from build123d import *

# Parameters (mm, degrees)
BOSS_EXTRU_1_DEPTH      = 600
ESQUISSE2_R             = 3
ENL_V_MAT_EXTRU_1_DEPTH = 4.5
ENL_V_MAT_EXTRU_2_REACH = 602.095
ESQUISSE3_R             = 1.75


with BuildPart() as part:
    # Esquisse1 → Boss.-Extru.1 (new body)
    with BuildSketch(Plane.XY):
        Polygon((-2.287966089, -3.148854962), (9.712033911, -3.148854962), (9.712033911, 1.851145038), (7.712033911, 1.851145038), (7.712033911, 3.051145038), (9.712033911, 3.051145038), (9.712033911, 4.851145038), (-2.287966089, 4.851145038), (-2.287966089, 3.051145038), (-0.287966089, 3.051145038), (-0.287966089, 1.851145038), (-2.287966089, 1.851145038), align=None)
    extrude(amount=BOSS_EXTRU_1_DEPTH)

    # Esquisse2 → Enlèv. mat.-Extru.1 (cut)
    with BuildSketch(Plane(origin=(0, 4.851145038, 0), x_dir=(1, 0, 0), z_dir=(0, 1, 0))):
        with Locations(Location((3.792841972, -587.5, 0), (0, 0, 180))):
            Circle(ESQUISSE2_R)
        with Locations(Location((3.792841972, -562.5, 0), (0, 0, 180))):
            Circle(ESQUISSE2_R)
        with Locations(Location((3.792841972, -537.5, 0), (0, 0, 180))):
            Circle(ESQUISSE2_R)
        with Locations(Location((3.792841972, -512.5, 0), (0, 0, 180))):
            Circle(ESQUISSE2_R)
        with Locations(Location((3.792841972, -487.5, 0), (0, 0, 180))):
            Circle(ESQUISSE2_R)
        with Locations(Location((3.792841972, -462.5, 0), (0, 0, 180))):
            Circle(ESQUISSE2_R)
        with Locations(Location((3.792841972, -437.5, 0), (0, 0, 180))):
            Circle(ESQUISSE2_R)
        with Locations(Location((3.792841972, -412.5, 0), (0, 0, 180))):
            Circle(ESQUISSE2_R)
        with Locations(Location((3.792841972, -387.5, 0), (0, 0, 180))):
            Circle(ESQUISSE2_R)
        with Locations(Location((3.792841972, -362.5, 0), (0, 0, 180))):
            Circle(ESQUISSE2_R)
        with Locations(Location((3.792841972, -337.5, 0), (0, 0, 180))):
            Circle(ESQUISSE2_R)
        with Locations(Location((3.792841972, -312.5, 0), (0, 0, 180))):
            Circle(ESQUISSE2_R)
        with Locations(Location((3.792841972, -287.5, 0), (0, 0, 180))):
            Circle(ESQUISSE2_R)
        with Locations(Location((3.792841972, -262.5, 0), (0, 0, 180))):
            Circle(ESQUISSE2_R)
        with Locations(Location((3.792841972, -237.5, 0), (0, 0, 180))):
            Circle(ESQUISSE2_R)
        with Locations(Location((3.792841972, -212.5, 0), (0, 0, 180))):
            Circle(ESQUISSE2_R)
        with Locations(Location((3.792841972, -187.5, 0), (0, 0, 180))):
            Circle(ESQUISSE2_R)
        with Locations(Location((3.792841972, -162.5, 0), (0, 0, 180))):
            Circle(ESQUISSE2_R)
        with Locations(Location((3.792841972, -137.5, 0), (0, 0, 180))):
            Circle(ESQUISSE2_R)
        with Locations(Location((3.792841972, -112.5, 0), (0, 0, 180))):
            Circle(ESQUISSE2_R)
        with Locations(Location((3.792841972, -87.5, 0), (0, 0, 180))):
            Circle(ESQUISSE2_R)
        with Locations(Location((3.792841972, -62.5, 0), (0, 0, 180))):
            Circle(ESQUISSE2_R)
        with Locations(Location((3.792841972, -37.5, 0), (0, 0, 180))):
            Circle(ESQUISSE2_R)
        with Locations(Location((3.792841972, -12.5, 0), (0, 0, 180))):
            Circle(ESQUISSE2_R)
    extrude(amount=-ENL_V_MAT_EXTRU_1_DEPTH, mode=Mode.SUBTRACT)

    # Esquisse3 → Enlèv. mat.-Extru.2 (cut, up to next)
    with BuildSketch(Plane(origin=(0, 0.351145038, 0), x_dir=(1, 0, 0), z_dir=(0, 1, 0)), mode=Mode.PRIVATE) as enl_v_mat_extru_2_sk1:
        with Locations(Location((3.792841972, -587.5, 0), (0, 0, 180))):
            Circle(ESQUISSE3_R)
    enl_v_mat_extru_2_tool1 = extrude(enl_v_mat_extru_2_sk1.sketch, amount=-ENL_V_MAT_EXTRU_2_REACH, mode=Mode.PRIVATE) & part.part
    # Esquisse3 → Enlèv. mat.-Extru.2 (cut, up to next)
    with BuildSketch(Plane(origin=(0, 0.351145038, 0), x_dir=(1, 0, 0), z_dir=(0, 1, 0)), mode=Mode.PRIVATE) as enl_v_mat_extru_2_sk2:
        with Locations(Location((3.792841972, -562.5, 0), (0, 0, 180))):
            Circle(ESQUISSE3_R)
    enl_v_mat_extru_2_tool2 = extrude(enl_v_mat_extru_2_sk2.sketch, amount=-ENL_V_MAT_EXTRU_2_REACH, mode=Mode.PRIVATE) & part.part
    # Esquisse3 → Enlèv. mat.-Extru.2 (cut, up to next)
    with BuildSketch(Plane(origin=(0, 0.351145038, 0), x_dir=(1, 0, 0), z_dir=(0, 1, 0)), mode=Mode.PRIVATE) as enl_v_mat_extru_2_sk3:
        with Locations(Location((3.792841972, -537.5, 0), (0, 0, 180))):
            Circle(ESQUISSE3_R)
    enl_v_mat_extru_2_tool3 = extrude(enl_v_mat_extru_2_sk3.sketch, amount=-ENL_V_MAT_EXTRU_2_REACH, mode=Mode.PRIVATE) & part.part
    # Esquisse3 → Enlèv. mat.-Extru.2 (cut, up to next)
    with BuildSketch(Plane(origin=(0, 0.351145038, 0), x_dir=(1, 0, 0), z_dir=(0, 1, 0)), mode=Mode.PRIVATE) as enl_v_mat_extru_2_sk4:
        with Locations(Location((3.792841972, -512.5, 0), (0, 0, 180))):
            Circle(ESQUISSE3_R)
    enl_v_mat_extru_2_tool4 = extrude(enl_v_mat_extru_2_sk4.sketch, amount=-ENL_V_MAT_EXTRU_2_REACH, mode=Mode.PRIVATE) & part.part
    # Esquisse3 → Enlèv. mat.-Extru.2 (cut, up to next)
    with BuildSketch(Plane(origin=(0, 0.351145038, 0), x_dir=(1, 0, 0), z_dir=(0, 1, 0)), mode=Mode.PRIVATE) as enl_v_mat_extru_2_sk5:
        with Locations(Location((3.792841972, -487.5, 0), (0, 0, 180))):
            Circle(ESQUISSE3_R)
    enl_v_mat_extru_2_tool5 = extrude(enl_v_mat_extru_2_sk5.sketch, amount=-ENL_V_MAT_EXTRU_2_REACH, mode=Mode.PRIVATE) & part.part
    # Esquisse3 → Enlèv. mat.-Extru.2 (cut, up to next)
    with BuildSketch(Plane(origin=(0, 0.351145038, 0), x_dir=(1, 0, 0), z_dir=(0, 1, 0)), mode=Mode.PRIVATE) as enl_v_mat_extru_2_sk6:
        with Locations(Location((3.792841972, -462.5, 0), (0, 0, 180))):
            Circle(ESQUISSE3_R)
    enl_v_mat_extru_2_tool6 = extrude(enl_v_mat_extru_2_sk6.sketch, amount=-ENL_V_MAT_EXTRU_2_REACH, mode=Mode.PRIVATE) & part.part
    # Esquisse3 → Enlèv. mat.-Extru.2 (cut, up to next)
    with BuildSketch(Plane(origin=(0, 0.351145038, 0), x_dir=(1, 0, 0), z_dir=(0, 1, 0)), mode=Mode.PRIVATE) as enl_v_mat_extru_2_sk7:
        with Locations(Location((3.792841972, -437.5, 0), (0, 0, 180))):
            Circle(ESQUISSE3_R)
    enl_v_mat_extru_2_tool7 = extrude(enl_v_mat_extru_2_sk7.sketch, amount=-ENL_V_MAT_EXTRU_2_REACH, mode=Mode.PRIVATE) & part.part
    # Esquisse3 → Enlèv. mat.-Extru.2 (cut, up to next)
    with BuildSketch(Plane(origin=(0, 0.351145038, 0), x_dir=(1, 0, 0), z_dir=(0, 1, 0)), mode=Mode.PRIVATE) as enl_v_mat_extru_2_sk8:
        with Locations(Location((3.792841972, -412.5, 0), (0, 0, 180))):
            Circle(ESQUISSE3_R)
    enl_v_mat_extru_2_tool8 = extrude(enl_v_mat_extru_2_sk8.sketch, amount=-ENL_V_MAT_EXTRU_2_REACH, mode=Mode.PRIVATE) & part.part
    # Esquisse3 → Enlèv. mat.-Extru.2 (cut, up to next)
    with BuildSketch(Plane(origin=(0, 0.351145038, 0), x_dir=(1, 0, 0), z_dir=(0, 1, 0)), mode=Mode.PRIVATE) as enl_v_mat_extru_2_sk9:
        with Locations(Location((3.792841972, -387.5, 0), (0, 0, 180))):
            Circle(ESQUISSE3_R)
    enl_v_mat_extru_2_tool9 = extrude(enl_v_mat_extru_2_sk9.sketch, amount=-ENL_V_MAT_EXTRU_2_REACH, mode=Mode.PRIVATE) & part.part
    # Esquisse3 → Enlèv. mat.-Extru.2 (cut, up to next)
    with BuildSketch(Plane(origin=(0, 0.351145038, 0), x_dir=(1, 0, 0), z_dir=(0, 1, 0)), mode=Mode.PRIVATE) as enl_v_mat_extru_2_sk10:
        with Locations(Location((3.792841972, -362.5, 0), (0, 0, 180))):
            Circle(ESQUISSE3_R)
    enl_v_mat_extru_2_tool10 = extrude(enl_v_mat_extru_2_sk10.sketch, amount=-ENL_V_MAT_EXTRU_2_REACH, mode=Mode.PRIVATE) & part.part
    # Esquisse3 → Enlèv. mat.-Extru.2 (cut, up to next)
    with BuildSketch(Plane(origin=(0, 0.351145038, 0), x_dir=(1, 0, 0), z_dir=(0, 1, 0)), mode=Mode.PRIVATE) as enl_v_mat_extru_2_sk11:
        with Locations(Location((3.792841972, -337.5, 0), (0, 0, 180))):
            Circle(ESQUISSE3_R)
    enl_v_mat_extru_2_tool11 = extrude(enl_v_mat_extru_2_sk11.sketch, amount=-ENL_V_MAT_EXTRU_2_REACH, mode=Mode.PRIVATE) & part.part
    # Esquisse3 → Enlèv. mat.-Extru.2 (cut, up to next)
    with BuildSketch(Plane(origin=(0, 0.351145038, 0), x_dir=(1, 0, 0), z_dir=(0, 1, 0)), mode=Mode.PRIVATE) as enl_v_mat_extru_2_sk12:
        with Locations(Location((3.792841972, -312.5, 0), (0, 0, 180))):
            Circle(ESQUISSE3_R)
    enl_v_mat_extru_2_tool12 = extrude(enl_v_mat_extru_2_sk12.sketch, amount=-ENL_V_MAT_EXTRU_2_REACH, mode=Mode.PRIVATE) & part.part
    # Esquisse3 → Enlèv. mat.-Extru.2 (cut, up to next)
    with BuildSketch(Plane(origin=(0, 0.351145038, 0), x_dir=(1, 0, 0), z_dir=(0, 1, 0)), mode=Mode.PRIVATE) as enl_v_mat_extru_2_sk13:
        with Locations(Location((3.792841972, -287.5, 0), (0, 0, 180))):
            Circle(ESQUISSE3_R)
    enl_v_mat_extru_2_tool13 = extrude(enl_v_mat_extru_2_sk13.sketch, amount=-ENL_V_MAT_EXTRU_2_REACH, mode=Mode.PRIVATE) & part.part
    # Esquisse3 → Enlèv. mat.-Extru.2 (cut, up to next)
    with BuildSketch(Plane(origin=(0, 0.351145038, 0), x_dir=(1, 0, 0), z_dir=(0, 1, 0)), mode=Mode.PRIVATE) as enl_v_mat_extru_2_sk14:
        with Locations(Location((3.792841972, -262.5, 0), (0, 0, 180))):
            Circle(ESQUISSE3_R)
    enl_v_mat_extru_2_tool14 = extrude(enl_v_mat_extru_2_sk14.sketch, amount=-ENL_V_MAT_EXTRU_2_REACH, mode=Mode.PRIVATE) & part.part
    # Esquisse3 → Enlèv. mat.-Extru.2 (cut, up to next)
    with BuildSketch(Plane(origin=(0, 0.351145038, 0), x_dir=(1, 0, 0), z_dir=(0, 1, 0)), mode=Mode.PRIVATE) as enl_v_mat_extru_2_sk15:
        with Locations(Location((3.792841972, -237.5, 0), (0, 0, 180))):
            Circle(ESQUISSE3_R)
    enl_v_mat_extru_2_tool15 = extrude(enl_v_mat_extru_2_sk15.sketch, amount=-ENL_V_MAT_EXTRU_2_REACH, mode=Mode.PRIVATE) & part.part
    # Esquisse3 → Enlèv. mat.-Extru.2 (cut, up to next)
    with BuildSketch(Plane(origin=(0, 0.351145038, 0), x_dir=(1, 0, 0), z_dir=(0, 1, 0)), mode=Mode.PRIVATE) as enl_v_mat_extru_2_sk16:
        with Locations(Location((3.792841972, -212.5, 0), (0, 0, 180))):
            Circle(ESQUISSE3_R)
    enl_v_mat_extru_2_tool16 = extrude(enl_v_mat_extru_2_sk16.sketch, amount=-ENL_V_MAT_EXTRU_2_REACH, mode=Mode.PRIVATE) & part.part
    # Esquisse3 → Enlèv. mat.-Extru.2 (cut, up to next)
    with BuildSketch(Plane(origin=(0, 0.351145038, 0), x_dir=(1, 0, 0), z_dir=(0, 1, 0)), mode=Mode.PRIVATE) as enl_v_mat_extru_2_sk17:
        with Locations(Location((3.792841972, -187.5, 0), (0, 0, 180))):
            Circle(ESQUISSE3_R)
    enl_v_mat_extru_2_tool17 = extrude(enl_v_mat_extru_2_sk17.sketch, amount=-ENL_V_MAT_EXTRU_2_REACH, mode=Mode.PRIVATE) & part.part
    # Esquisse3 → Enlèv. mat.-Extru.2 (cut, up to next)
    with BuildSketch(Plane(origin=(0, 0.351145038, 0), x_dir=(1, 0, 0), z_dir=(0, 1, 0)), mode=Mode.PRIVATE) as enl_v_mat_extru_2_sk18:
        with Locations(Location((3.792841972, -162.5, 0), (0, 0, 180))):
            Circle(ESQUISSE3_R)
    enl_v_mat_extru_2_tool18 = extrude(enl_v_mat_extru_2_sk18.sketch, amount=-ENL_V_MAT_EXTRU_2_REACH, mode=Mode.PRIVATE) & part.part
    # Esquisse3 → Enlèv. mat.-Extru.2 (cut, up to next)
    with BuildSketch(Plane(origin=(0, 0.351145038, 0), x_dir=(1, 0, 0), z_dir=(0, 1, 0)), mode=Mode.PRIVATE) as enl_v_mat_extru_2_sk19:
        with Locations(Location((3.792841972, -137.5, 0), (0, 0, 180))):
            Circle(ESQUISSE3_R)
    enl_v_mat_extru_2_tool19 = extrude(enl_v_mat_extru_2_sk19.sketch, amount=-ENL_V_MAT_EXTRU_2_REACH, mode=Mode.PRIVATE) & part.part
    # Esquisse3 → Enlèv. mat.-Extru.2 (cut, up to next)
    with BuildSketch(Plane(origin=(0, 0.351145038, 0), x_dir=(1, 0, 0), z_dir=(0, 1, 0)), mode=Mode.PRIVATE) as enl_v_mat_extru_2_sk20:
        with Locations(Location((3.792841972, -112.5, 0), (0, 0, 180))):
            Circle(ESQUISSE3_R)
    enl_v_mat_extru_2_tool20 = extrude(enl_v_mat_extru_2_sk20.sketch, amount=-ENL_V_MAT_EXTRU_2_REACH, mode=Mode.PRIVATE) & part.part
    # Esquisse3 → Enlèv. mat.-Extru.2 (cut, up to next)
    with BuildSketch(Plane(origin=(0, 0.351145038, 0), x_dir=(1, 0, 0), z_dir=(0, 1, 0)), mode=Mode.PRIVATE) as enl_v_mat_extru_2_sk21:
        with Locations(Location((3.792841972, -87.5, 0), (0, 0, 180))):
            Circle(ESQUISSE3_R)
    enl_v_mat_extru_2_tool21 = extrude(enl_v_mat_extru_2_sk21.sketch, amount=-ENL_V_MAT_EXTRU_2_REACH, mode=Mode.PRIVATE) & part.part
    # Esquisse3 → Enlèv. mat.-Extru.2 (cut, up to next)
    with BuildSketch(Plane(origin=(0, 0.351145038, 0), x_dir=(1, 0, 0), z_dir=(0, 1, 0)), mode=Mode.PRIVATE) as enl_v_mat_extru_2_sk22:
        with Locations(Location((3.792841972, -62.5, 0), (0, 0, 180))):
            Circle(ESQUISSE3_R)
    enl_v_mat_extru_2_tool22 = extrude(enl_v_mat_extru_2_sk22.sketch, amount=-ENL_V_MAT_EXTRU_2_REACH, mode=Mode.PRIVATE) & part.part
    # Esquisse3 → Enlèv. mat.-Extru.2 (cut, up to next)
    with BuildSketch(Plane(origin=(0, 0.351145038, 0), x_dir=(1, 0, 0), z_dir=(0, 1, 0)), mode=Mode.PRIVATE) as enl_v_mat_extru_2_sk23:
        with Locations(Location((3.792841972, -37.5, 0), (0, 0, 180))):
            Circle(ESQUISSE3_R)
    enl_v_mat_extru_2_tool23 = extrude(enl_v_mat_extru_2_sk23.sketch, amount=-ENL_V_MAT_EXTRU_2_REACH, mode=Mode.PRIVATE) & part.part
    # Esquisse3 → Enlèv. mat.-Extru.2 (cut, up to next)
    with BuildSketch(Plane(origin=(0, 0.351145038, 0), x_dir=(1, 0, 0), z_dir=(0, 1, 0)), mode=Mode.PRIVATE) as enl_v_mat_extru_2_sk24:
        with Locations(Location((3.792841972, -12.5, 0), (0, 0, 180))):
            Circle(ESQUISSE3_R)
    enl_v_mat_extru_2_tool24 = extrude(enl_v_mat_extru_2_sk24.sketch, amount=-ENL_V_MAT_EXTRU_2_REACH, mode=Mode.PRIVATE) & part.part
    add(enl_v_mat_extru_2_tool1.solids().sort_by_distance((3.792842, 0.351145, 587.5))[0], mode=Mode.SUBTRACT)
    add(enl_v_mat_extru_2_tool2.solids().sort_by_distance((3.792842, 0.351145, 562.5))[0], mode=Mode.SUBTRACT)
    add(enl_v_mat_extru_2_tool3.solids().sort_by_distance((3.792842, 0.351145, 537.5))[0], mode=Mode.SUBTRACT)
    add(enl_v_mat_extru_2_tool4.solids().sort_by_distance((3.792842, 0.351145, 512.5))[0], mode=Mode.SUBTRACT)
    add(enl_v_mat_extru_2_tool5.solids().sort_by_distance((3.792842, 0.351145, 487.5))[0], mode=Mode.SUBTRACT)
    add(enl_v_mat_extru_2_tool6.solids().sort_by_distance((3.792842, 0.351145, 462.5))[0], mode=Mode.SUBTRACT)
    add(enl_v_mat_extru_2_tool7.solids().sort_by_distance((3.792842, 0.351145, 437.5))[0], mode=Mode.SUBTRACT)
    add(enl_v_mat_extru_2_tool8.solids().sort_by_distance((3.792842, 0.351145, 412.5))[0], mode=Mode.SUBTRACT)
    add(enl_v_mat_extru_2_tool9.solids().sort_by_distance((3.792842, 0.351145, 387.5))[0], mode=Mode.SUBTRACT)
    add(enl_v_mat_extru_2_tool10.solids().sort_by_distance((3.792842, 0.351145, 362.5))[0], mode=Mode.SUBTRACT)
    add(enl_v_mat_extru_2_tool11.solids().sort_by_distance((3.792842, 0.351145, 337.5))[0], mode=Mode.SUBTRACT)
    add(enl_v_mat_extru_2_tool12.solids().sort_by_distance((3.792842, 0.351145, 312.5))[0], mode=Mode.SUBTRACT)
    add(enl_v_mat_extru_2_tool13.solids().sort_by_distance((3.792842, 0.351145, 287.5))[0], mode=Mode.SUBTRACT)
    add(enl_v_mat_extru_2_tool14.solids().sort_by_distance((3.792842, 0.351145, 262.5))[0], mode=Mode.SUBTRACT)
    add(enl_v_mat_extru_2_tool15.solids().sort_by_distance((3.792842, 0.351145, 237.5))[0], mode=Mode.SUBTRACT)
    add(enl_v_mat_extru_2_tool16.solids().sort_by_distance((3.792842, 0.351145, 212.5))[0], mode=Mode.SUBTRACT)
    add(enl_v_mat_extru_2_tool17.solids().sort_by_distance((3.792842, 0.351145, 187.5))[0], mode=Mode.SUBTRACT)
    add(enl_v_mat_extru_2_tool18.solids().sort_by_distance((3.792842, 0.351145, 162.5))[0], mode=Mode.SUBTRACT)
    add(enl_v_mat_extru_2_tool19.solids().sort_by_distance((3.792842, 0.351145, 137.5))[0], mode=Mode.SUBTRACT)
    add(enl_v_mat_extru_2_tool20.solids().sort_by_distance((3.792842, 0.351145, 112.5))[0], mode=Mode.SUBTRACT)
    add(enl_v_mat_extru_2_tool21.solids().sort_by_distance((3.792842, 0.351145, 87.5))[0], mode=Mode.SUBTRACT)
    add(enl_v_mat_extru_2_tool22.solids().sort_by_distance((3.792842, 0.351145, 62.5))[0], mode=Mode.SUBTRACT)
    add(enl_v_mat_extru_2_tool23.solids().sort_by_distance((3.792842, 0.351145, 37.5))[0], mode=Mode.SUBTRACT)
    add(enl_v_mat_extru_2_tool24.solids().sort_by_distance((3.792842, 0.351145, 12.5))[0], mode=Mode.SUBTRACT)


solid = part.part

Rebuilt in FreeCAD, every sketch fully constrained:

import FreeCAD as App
import Part
import Sketcher
from FreeCAD import Vector

doc = App.newDocument("Part")
body = doc.addObject("PartDesign::Body", "Body")

sketch1 = body.newObject("Sketcher::SketchObject", "Sketch")
sketch1.AttachmentSupport = (doc.getObject("XY_Plane"), [""])
sketch1.MapMode = "FlatFace"
sketch1.addGeometry(Part.LineSegment(Vector(-2.3, -3.1, 0), Vector(9.7, -3.1, 0)), False)
sketch1.addGeometry(Part.LineSegment(Vector(9.7, -3.1, 0), Vector(9.7, 1.9, 0)), False)
sketch1.addGeometry(Part.LineSegment(Vector(9.7, 1.9, 0), Vector(7.7, 1.9, 0)), False)
sketch1.addGeometry(Part.LineSegment(Vector(7.7, 1.9, 0), Vector(7.7, 3.1, 0)), False)
sketch1.addGeometry(Part.LineSegment(Vector(7.7, 3.1, 0), Vector(9.7, 3.1, 0)), False)
sketch1.addGeometry(Part.LineSegment(Vector(9.7, 3.1, 0), Vector(9.7, 4.9, 0)), False)
sketch1.addGeometry(Part.LineSegment(Vector(9.7, 4.9, 0), Vector(-2.3, 4.9, 0)), False)
sketch1.addGeometry(Part.LineSegment(Vector(-2.3, 4.9, 0), Vector(-2.3, 3.1, 0)), False)
sketch1.addGeometry(Part.LineSegment(Vector(-2.3, 3.1, 0), Vector(-0.3, 3.1, 0)), False)
sketch1.addGeometry(Part.LineSegment(Vector(-0.3, 3.1, 0), Vector(-0.3, 1.9, 0)), False)
sketch1.addGeometry(Part.LineSegment(Vector(-0.3, 1.9, 0), Vector(-2.3, 1.9, 0)), False)
sketch1.addGeometry(Part.LineSegment(Vector(-2.3, 1.9, 0), Vector(-2.3, -3.1, 0)), False)
sketch1.addConstraint(Sketcher.Constraint("Coincident", 0, 2, 1, 1))
sketch1.addConstraint(Sketcher.Constraint("Coincident", 1, 2, 2, 1))
sketch1.addConstraint(Sketcher.Constraint("Coincident", 2, 2, 3, 1))
sketch1.addConstraint(Sketcher.Constraint("Coincident", 3, 2, 4, 1))
sketch1.addConstraint(Sketcher.Constraint("Coincident", 4, 2, 5, 1))
sketch1.addConstraint(Sketcher.Constraint("Coincident", 5, 2, 6, 1))
sketch1.addConstraint(Sketcher.Constraint("Coincident", 6, 2, 7, 1))
sketch1.addConstraint(Sketcher.Constraint("Coincident", 7, 2, 8, 1))
sketch1.addConstraint(Sketcher.Constraint("Coincident", 8, 2, 9, 1))
sketch1.addConstraint(Sketcher.Constraint("Coincident", 9, 2, 10, 1))
sketch1.addConstraint(Sketcher.Constraint("Coincident", 10, 2, 11, 1))
sketch1.addConstraint(Sketcher.Constraint("Coincident", 11, 2, 0, 1))
sketch1.addConstraint(Sketcher.Constraint("Horizontal", 0))
sketch1.addConstraint(Sketcher.Constraint("Vertical", 1))
sketch1.addConstraint(Sketcher.Constraint("Horizontal", 2))
sketch1.addConstraint(Sketcher.Constraint("Vertical", 3))
sketch1.addConstraint(Sketcher.Constraint("Horizontal", 4))
sketch1.addConstraint(Sketcher.Constraint("Vertical", 5))
sketch1.addConstraint(Sketcher.Constraint("Horizontal", 6))
sketch1.addConstraint(Sketcher.Constraint("Vertical", 7))
sketch1.addConstraint(Sketcher.Constraint("Horizontal", 8))
sketch1.addConstraint(Sketcher.Constraint("Vertical", 9))
sketch1.addConstraint(Sketcher.Constraint("Horizontal", 10))
sketch1.addConstraint(Sketcher.Constraint("Vertical", 11))
sketch1.addConstraint(Sketcher.Constraint("Horizontal", 4, 2, 7, 2))
sketch1.addConstraint(Sketcher.Constraint("Horizontal", 2, 2, 9, 2))
sketch1.addConstraint(Sketcher.Constraint("Vertical", 1, 2, 4, 2))
sketch1.addConstraint(Sketcher.Constraint("Vertical", 7, 2, 10, 2))
sketch1.addConstraint(Sketcher.Constraint("Equal", 4, 8))
sketch1.addConstraint(Sketcher.Constraint("DistanceX", 0, 1, 0, 2, 12.0))
sketch1.addConstraint(Sketcher.Constraint("DistanceX", 2, 2, 2, 1, 2.0))
sketch1.addConstraint(Sketcher.Constraint("DistanceY", 1, 1, 1, 2, 5.0))
sketch1.addConstraint(Sketcher.Constraint("DistanceY", 3, 1, 3, 2, 1.2))
sketch1.addConstraint(Sketcher.Constraint("DistanceY", 5, 1, 5, 2, 1.8))
sketch1.addConstraint(Sketcher.Constraint("DistanceX", -1, 1, 0, 2, 9.712034))
sketch1.addConstraint(Sketcher.Constraint("DistanceY", 0, 2, -1, 1, 3.148855))
pad1 = body.newObject("PartDesign::Pad", "Pad")
pad1.Profile = sketch1
pad1.Length = 600

sketch2 = body.newObject("Sketcher::SketchObject", "Sketch001")
sketch2.AttachmentSupport = (doc.getObject("XZ_Plane"), [""])
sketch2.MapMode = "FlatFace"
sketch2.AttachmentOffset = App.Placement(Vector(0, 0, -4.851145), App.Rotation())
sketch2.addGeometry(Part.Circle(Vector(3.8, 587.5, 0), Vector(0, 0, 1), 3), False)
sketch2.addGeometry(Part.Circle(Vector(3.8, 562.5, 0), Vector(0, 0, 1), 3), False)
sketch2.addGeometry(Part.Circle(Vector(3.8, 537.5, 0), Vector(0, 0, 1), 3), False)
sketch2.addGeometry(Part.Circle(Vector(3.8, 512.5, 0), Vector(0, 0, 1), 3), False)
sketch2.addGeometry(Part.Circle(Vector(3.8, 487.5, 0), Vector(0, 0, 1), 3), False)
sketch2.addGeometry(Part.Circle(Vector(3.8, 462.5, 0), Vector(0, 0, 1), 3), False)
sketch2.addGeometry(Part.Circle(Vector(3.8, 437.5, 0), Vector(0, 0, 1), 3), False)
sketch2.addGeometry(Part.Circle(Vector(3.8, 412.5, 0), Vector(0, 0, 1), 3), False)
sketch2.addGeometry(Part.Circle(Vector(3.8, 387.5, 0), Vector(0, 0, 1), 3), False)
sketch2.addGeometry(Part.Circle(Vector(3.8, 362.5, 0), Vector(0, 0, 1), 3), False)
sketch2.addGeometry(Part.Circle(Vector(3.8, 337.5, 0), Vector(0, 0, 1), 3), False)
sketch2.addGeometry(Part.Circle(Vector(3.8, 312.5, 0), Vector(0, 0, 1), 3), False)
sketch2.addGeometry(Part.Circle(Vector(3.8, 287.5, 0), Vector(0, 0, 1), 3), False)
sketch2.addGeometry(Part.Circle(Vector(3.8, 262.5, 0), Vector(0, 0, 1), 3), False)
sketch2.addGeometry(Part.Circle(Vector(3.8, 237.5, 0), Vector(0, 0, 1), 3), False)
sketch2.addGeometry(Part.Circle(Vector(3.8, 212.5, 0), Vector(0, 0, 1), 3), False)
sketch2.addGeometry(Part.Circle(Vector(3.8, 187.5, 0), Vector(0, 0, 1), 3), False)
sketch2.addGeometry(Part.Circle(Vector(3.8, 162.5, 0), Vector(0, 0, 1), 3), False)
sketch2.addGeometry(Part.Circle(Vector(3.8, 137.5, 0), Vector(0, 0, 1), 3), False)
sketch2.addGeometry(Part.Circle(Vector(3.8, 112.5, 0), Vector(0, 0, 1), 3), False)
sketch2.addGeometry(Part.Circle(Vector(3.8, 87.5, 0), Vector(0, 0, 1), 3), False)
sketch2.addGeometry(Part.Circle(Vector(3.8, 62.5, 0), Vector(0, 0, 1), 3), False)
sketch2.addGeometry(Part.Circle(Vector(3.8, 37.5, 0), Vector(0, 0, 1), 3), False)
sketch2.addGeometry(Part.Circle(Vector(3.8, 12.5, 0), Vector(0, 0, 1), 3), False)
sketch2.addConstraint(Sketcher.Constraint("Equal", 0, 1))
sketch2.addConstraint(Sketcher.Constraint("Equal", 1, 2))
sketch2.addConstraint(Sketcher.Constraint("Equal", 2, 3))
sketch2.addConstraint(Sketcher.Constraint("Equal", 3, 4))
sketch2.addConstraint(Sketcher.Constraint("Equal", 4, 5))
sketch2.addConstraint(Sketcher.Constraint("Equal", 5, 6))
sketch2.addConstraint(Sketcher.Constraint("Equal", 6, 7))
sketch2.addConstraint(Sketcher.Constraint("Equal", 7, 8))
sketch2.addConstraint(Sketcher.Constraint("Equal", 8, 9))
sketch2.addConstraint(Sketcher.Constraint("Equal", 9, 10))
sketch2.addConstraint(Sketcher.Constraint("Equal", 10, 11))
sketch2.addConstraint(Sketcher.Constraint("Equal", 11, 12))
sketch2.addConstraint(Sketcher.Constraint("Equal", 12, 13))
sketch2.addConstraint(Sketcher.Constraint("Equal", 13, 14))
sketch2.addConstraint(Sketcher.Constraint("Equal", 14, 15))
sketch2.addConstraint(Sketcher.Constraint("Equal", 15, 16))
sketch2.addConstraint(Sketcher.Constraint("Equal", 16, 17))
sketch2.addConstraint(Sketcher.Constraint("Equal", 17, 18))
sketch2.addConstraint(Sketcher.Constraint("Equal", 18, 19))
sketch2.addConstraint(Sketcher.Constraint("Equal", 19, 20))
sketch2.addConstraint(Sketcher.Constraint("Equal", 20, 21))
sketch2.addConstraint(Sketcher.Constraint("Equal", 21, 22))
sketch2.addConstraint(Sketcher.Constraint("Equal", 22, 23))
sketch2.addConstraint(Sketcher.Constraint("Vertical", 0, 3, 1, 3))
sketch2.addConstraint(Sketcher.Constraint("Vertical", 1, 3, 2, 3))
sketch2.addConstraint(Sketcher.Constraint("Vertical", 2, 3, 3, 3))
sketch2.addConstraint(Sketcher.Constraint("Vertical", 3, 3, 4, 3))
sketch2.addConstraint(Sketcher.Constraint("Vertical", 4, 3, 5, 3))
sketch2.addConstraint(Sketcher.Constraint("Vertical", 5, 3, 6, 3))
sketch2.addConstraint(Sketcher.Constraint("Vertical", 6, 3, 7, 3))
sketch2.addConstraint(Sketcher.Constraint("Vertical", 7, 3, 8, 3))
sketch2.addConstraint(Sketcher.Constraint("Vertical", 8, 3, 9, 3))
sketch2.addConstraint(Sketcher.Constraint("Vertical", 9, 3, 10, 3))
sketch2.addConstraint(Sketcher.Constraint("Vertical", 10, 3, 11, 3))
sketch2.addConstraint(Sketcher.Constraint("Vertical", 11, 3, 12, 3))
sketch2.addConstraint(Sketcher.Constraint("Vertical", 12, 3, 13, 3))
sketch2.addConstraint(Sketcher.Constraint("Vertical", 13, 3, 14, 3))
sketch2.addConstraint(Sketcher.Constraint("Vertical", 14, 3, 15, 3))
sketch2.addConstraint(Sketcher.Constraint("Vertical", 15, 3, 16, 3))
sketch2.addConstraint(Sketcher.Constraint("Vertical", 16, 3, 17, 3))
sketch2.addConstraint(Sketcher.Constraint("Vertical", 17, 3, 18, 3))
sketch2.addConstraint(Sketcher.Constraint("Vertical", 18, 3, 19, 3))
sketch2.addConstraint(Sketcher.Constraint("Vertical", 19, 3, 20, 3))
sketch2.addConstraint(Sketcher.Constraint("Vertical", 20, 3, 21, 3))
sketch2.addConstraint(Sketcher.Constraint("Vertical", 21, 3, 22, 3))
sketch2.addConstraint(Sketcher.Constraint("Vertical", 22, 3, 23, 3))
sketch2.addConstraint(Sketcher.Constraint("Diameter", 0, 6.0))
sketch2.addConstraint(Sketcher.Constraint("DistanceY", 1, 3, 0, 3, 25.0))
sketch2.addConstraint(Sketcher.Constraint("DistanceY", 2, 3, 1, 3, 25.0))
sketch2.addConstraint(Sketcher.Constraint("DistanceY", 3, 3, 2, 3, 25.0))
sketch2.addConstraint(Sketcher.Constraint("DistanceY", 4, 3, 3, 3, 25.0))
sketch2.addConstraint(Sketcher.Constraint("DistanceY", 5, 3, 4, 3, 25.0))
sketch2.addConstraint(Sketcher.Constraint("DistanceY", 6, 3, 5, 3, 25.0))
sketch2.addConstraint(Sketcher.Constraint("DistanceY", 7, 3, 6, 3, 25.0))
sketch2.addConstraint(Sketcher.Constraint("DistanceY", 8, 3, 7, 3, 25.0))
sketch2.addConstraint(Sketcher.Constraint("DistanceY", 9, 3, 8, 3, 25.0))
sketch2.addConstraint(Sketcher.Constraint("DistanceY", 10, 3, 9, 3, 25.0))
sketch2.addConstraint(Sketcher.Constraint("DistanceY", 11, 3, 10, 3, 25.0))
sketch2.addConstraint(Sketcher.Constraint("DistanceY", 12, 3, 11, 3, 25.0))
sketch2.addConstraint(Sketcher.Constraint("DistanceY", 13, 3, 12, 3, 25.0))
sketch2.addConstraint(Sketcher.Constraint("DistanceY", 14, 3, 13, 3, 25.0))
sketch2.addConstraint(Sketcher.Constraint("DistanceY", 15, 3, 14, 3, 25.0))
sketch2.addConstraint(Sketcher.Constraint("DistanceY", 16, 3, 15, 3, 25.0))
sketch2.addConstraint(Sketcher.Constraint("DistanceY", 17, 3, 16, 3, 25.0))
sketch2.addConstraint(Sketcher.Constraint("DistanceY", 18, 3, 17, 3, 25.0))
sketch2.addConstraint(Sketcher.Constraint("DistanceY", 19, 3, 18, 3, 25.0))
sketch2.addConstraint(Sketcher.Constraint("DistanceY", 20, 3, 19, 3, 25.0))
sketch2.addConstraint(Sketcher.Constraint("DistanceY", 21, 3, 20, 3, 25.0))
sketch2.addConstraint(Sketcher.Constraint("DistanceY", 22, 3, 21, 3, 25.0))
sketch2.addConstraint(Sketcher.Constraint("DistanceY", 23, 3, 22, 3, 25.0))
sketch2.addConstraint(Sketcher.Constraint("DistanceY", -1, 1, 0, 3, 587.5))
sketch2.addConstraint(Sketcher.Constraint("DistanceX", -1, 1, 0, 3, 3.792842))
pocket1 = body.newObject("PartDesign::Pocket", "Pocket")
pocket1.Profile = sketch2
pocket1.Length = 4.5
pocket1.Reversed = True

sketch3 = body.newObject("Sketcher::SketchObject", "Sketch002")
sketch3.AttachmentSupport = (doc.getObject("XZ_Plane"), [""])
sketch3.MapMode = "FlatFace"
sketch3.AttachmentOffset = App.Placement(Vector(0, 0, -0.351145), App.Rotation())
sketch3.addGeometry(Part.Circle(Vector(3.8, 587.5, 0), Vector(0, 0, 1), 1.8), False)
sketch3.addConstraint(Sketcher.Constraint("Diameter", 0, 3.5))
sketch3.addConstraint(Sketcher.Constraint("DistanceY", -1, 1, 0, 3, 587.5))
sketch3.addConstraint(Sketcher.Constraint("DistanceX", -1, 1, 0, 3, 3.792842))
pocket2 = body.newObject("PartDesign::Pocket", "Pocket001")
pocket2.Profile = sketch3
pocket2.Type = "UpToFirst"
pocket2.Reversed = True

sketch4 = body.newObject("Sketcher::SketchObject", "Sketch003")
sketch4.AttachmentSupport = (doc.getObject("XZ_Plane"), [""])
sketch4.MapMode = "FlatFace"
sketch4.AttachmentOffset = App.Placement(Vector(0, 0, -0.351145), App.Rotation())
sketch4.addGeometry(Part.Circle(Vector(3.8, 562.5, 0), Vector(0, 0, 1), 1.8), False)
sketch4.addConstraint(Sketcher.Constraint("Diameter", 0, 3.5))
sketch4.addConstraint(Sketcher.Constraint("DistanceY", -1, 1, 0, 3, 562.5))
sketch4.addConstraint(Sketcher.Constraint("DistanceX", -1, 1, 0, 3, 3.792842))
pocket3 = body.newObject("PartDesign::Pocket", "Pocket002")
pocket3.Profile = sketch4
pocket3.Type = "UpToFirst"
pocket3.Reversed = True

sketch5 = body.newObject("Sketcher::SketchObject", "Sketch004")
sketch5.AttachmentSupport = (doc.getObject("XZ_Plane"), [""])
sketch5.MapMode = "FlatFace"
sketch5.AttachmentOffset = App.Placement(Vector(0, 0, -0.351145), App.Rotation())
sketch5.addGeometry(Part.Circle(Vector(3.8, 537.5, 0), Vector(0, 0, 1), 1.8), False)
sketch5.addConstraint(Sketcher.Constraint("Diameter", 0, 3.5))
sketch5.addConstraint(Sketcher.Constraint("DistanceY", -1, 1, 0, 3, 537.5))
sketch5.addConstraint(Sketcher.Constraint("DistanceX", -1, 1, 0, 3, 3.792842))
pocket4 = body.newObject("PartDesign::Pocket", "Pocket003")
pocket4.Profile = sketch5
pocket4.Type = "UpToFirst"
pocket4.Reversed = True

sketch6 = body.newObject("Sketcher::SketchObject", "Sketch005")
sketch6.AttachmentSupport = (doc.getObject("XZ_Plane"), [""])
sketch6.MapMode = "FlatFace"
sketch6.AttachmentOffset = App.Placement(Vector(0, 0, -0.351145), App.Rotation())
sketch6.addGeometry(Part.Circle(Vector(3.8, 512.5, 0), Vector(0, 0, 1), 1.8), False)
sketch6.addConstraint(Sketcher.Constraint("Diameter", 0, 3.5))
sketch6.addConstraint(Sketcher.Constraint("DistanceY", -1, 1, 0, 3, 512.5))
sketch6.addConstraint(Sketcher.Constraint("DistanceX", -1, 1, 0, 3, 3.792842))
pocket5 = body.newObject("PartDesign::Pocket", "Pocket004")
pocket5.Profile = sketch6
pocket5.Type = "UpToFirst"
pocket5.Reversed = True

sketch7 = body.newObject("Sketcher::SketchObject", "Sketch006")
sketch7.AttachmentSupport = (doc.getObject("XZ_Plane"), [""])
sketch7.MapMode = "FlatFace"
sketch7.AttachmentOffset = App.Placement(Vector(0, 0, -0.351145), App.Rotation())
sketch7.addGeometry(Part.Circle(Vector(3.8, 487.5, 0), Vector(0, 0, 1), 1.8), False)
sketch7.addConstraint(Sketcher.Constraint("Diameter", 0, 3.5))
sketch7.addConstraint(Sketcher.Constraint("DistanceY", -1, 1, 0, 3, 487.5))
sketch7.addConstraint(Sketcher.Constraint("DistanceX", -1, 1, 0, 3, 3.792842))
pocket6 = body.newObject("PartDesign::Pocket", "Pocket005")
pocket6.Profile = sketch7
pocket6.Type = "UpToFirst"
pocket6.Reversed = True

sketch8 = body.newObject("Sketcher::SketchObject", "Sketch007")
sketch8.AttachmentSupport = (doc.getObject("XZ_Plane"), [""])
sketch8.MapMode = "FlatFace"
sketch8.AttachmentOffset = App.Placement(Vector(0, 0, -0.351145), App.Rotation())
sketch8.addGeometry(Part.Circle(Vector(3.8, 462.5, 0), Vector(0, 0, 1), 1.8), False)
sketch8.addConstraint(Sketcher.Constraint("Diameter", 0, 3.5))
sketch8.addConstraint(Sketcher.Constraint("DistanceY", -1, 1, 0, 3, 462.5))
sketch8.addConstraint(Sketcher.Constraint("DistanceX", -1, 1, 0, 3, 3.792842))
pocket7 = body.newObject("PartDesign::Pocket", "Pocket006")
pocket7.Profile = sketch8
pocket7.Type = "UpToFirst"
pocket7.Reversed = True

sketch9 = body.newObject("Sketcher::SketchObject", "Sketch008")
sketch9.AttachmentSupport = (doc.getObject("XZ_Plane"), [""])
sketch9.MapMode = "FlatFace"
sketch9.AttachmentOffset = App.Placement(Vector(0, 0, -0.351145), App.Rotation())
sketch9.addGeometry(Part.Circle(Vector(3.8, 437.5, 0), Vector(0, 0, 1), 1.8), False)
sketch9.addConstraint(Sketcher.Constraint("Diameter", 0, 3.5))
sketch9.addConstraint(Sketcher.Constraint("DistanceY", -1, 1, 0, 3, 437.5))
sketch9.addConstraint(Sketcher.Constraint("DistanceX", -1, 1, 0, 3, 3.792842))
pocket8 = body.newObject("PartDesign::Pocket", "Pocket007")
pocket8.Profile = sketch9
pocket8.Type = "UpToFirst"
pocket8.Reversed = True

sketch10 = body.newObject("Sketcher::SketchObject", "Sketch009")
sketch10.AttachmentSupport = (doc.getObject("XZ_Plane"), [""])
sketch10.MapMode = "FlatFace"
sketch10.AttachmentOffset = App.Placement(Vector(0, 0, -0.351145), App.Rotation())
sketch10.addGeometry(Part.Circle(Vector(3.8, 412.5, 0), Vector(0, 0, 1), 1.8), False)
sketch10.addConstraint(Sketcher.Constraint("Diameter", 0, 3.5))
sketch10.addConstraint(Sketcher.Constraint("DistanceY", -1, 1, 0, 3, 412.5))
sketch10.addConstraint(Sketcher.Constraint("DistanceX", -1, 1, 0, 3, 3.792842))
pocket9 = body.newObject("PartDesign::Pocket", "Pocket008")
pocket9.Profile = sketch10
pocket9.Type = "UpToFirst"
pocket9.Reversed = True

sketch11 = body.newObject("Sketcher::SketchObject", "Sketch010")
sketch11.AttachmentSupport = (doc.getObject("XZ_Plane"), [""])
sketch11.MapMode = "FlatFace"
sketch11.AttachmentOffset = App.Placement(Vector(0, 0, -0.351145), App.Rotation())
sketch11.addGeometry(Part.Circle(Vector(3.8, 387.5, 0), Vector(0, 0, 1), 1.8), False)
sketch11.addConstraint(Sketcher.Constraint("Diameter", 0, 3.5))
sketch11.addConstraint(Sketcher.Constraint("DistanceY", -1, 1, 0, 3, 387.5))
sketch11.addConstraint(Sketcher.Constraint("DistanceX", -1, 1, 0, 3, 3.792842))
pocket10 = body.newObject("PartDesign::Pocket", "Pocket009")
pocket10.Profile = sketch11
pocket10.Type = "UpToFirst"
pocket10.Reversed = True

sketch12 = body.newObject("Sketcher::SketchObject", "Sketch011")
sketch12.AttachmentSupport = (doc.getObject("XZ_Plane"), [""])
sketch12.MapMode = "FlatFace"
sketch12.AttachmentOffset = App.Placement(Vector(0, 0, -0.351145), App.Rotation())
sketch12.addGeometry(Part.Circle(Vector(3.8, 362.5, 0), Vector(0, 0, 1), 1.8), False)
sketch12.addConstraint(Sketcher.Constraint("Diameter", 0, 3.5))
sketch12.addConstraint(Sketcher.Constraint("DistanceY", -1, 1, 0, 3, 362.5))
sketch12.addConstraint(Sketcher.Constraint("DistanceX", -1, 1, 0, 3, 3.792842))
pocket11 = body.newObject("PartDesign::Pocket", "Pocket010")
pocket11.Profile = sketch12
pocket11.Type = "UpToFirst"
pocket11.Reversed = True

sketch13 = body.newObject("Sketcher::SketchObject", "Sketch012")
sketch13.AttachmentSupport = (doc.getObject("XZ_Plane"), [""])
sketch13.MapMode = "FlatFace"
sketch13.AttachmentOffset = App.Placement(Vector(0, 0, -0.351145), App.Rotation())
sketch13.addGeometry(Part.Circle(Vector(3.8, 337.5, 0), Vector(0, 0, 1), 1.8), False)
sketch13.addConstraint(Sketcher.Constraint("Diameter", 0, 3.5))
sketch13.addConstraint(Sketcher.Constraint("DistanceY", -1, 1, 0, 3, 337.5))
sketch13.addConstraint(Sketcher.Constraint("DistanceX", -1, 1, 0, 3, 3.792842))
pocket12 = body.newObject("PartDesign::Pocket", "Pocket011")
pocket12.Profile = sketch13
pocket12.Type = "UpToFirst"
pocket12.Reversed = True

sketch14 = body.newObject("Sketcher::SketchObject", "Sketch013")
sketch14.AttachmentSupport = (doc.getObject("XZ_Plane"), [""])
sketch14.MapMode = "FlatFace"
sketch14.AttachmentOffset = App.Placement(Vector(0, 0, -0.351145), App.Rotation())
sketch14.addGeometry(Part.Circle(Vector(3.8, 312.5, 0), Vector(0, 0, 1), 1.8), False)
sketch14.addConstraint(Sketcher.Constraint("Diameter", 0, 3.5))
sketch14.addConstraint(Sketcher.Constraint("DistanceY", -1, 1, 0, 3, 312.5))
sketch14.addConstraint(Sketcher.Constraint("DistanceX", -1, 1, 0, 3, 3.792842))
pocket13 = body.newObject("PartDesign::Pocket", "Pocket012")
pocket13.Profile = sketch14
pocket13.Type = "UpToFirst"
pocket13.Reversed = True

sketch15 = body.newObject("Sketcher::SketchObject", "Sketch014")
sketch15.AttachmentSupport = (doc.getObject("XZ_Plane"), [""])
sketch15.MapMode = "FlatFace"
sketch15.AttachmentOffset = App.Placement(Vector(0, 0, -0.351145), App.Rotation())
sketch15.addGeometry(Part.Circle(Vector(3.8, 287.5, 0), Vector(0, 0, 1), 1.8), False)
sketch15.addConstraint(Sketcher.Constraint("Diameter", 0, 3.5))
sketch15.addConstraint(Sketcher.Constraint("DistanceY", -1, 1, 0, 3, 287.5))
sketch15.addConstraint(Sketcher.Constraint("DistanceX", -1, 1, 0, 3, 3.792842))
pocket14 = body.newObject("PartDesign::Pocket", "Pocket013")
pocket14.Profile = sketch15
pocket14.Type = "UpToFirst"
pocket14.Reversed = True

sketch16 = body.newObject("Sketcher::SketchObject", "Sketch015")
sketch16.AttachmentSupport = (doc.getObject("XZ_Plane"), [""])
sketch16.MapMode = "FlatFace"
sketch16.AttachmentOffset = App.Placement(Vector(0, 0, -0.351145), App.Rotation())
sketch16.addGeometry(Part.Circle(Vector(3.8, 262.5, 0), Vector(0, 0, 1), 1.8), False)
sketch16.addConstraint(Sketcher.Constraint("Diameter", 0, 3.5))
sketch16.addConstraint(Sketcher.Constraint("DistanceY", -1, 1, 0, 3, 262.5))
sketch16.addConstraint(Sketcher.Constraint("DistanceX", -1, 1, 0, 3, 3.792842))
pocket15 = body.newObject("PartDesign::Pocket", "Pocket014")
pocket15.Profile = sketch16
pocket15.Type = "UpToFirst"
pocket15.Reversed = True

sketch17 = body.newObject("Sketcher::SketchObject", "Sketch016")
sketch17.AttachmentSupport = (doc.getObject("XZ_Plane"), [""])
sketch17.MapMode = "FlatFace"
sketch17.AttachmentOffset = App.Placement(Vector(0, 0, -0.351145), App.Rotation())
sketch17.addGeometry(Part.Circle(Vector(3.8, 237.5, 0), Vector(0, 0, 1), 1.8), False)
sketch17.addConstraint(Sketcher.Constraint("Diameter", 0, 3.5))
sketch17.addConstraint(Sketcher.Constraint("DistanceY", -1, 1, 0, 3, 237.5))
sketch17.addConstraint(Sketcher.Constraint("DistanceX", -1, 1, 0, 3, 3.792842))
pocket16 = body.newObject("PartDesign::Pocket", "Pocket015")
pocket16.Profile = sketch17
pocket16.Type = "UpToFirst"
pocket16.Reversed = True

sketch18 = body.newObject("Sketcher::SketchObject", "Sketch017")
sketch18.AttachmentSupport = (doc.getObject("XZ_Plane"), [""])
sketch18.MapMode = "FlatFace"
sketch18.AttachmentOffset = App.Placement(Vector(0, 0, -0.351145), App.Rotation())
sketch18.addGeometry(Part.Circle(Vector(3.8, 212.5, 0), Vector(0, 0, 1), 1.8), False)
sketch18.addConstraint(Sketcher.Constraint("Diameter", 0, 3.5))
sketch18.addConstraint(Sketcher.Constraint("DistanceY", -1, 1, 0, 3, 212.5))
sketch18.addConstraint(Sketcher.Constraint("DistanceX", -1, 1, 0, 3, 3.792842))
pocket17 = body.newObject("PartDesign::Pocket", "Pocket016")
pocket17.Profile = sketch18
pocket17.Type = "UpToFirst"
pocket17.Reversed = True

sketch19 = body.newObject("Sketcher::SketchObject", "Sketch018")
sketch19.AttachmentSupport = (doc.getObject("XZ_Plane"), [""])
sketch19.MapMode = "FlatFace"
sketch19.AttachmentOffset = App.Placement(Vector(0, 0, -0.351145), App.Rotation())
sketch19.addGeometry(Part.Circle(Vector(3.8, 187.5, 0), Vector(0, 0, 1), 1.8), False)
sketch19.addConstraint(Sketcher.Constraint("Diameter", 0, 3.5))
sketch19.addConstraint(Sketcher.Constraint("DistanceY", -1, 1, 0, 3, 187.5))
sketch19.addConstraint(Sketcher.Constraint("DistanceX", -1, 1, 0, 3, 3.792842))
pocket18 = body.newObject("PartDesign::Pocket", "Pocket017")
pocket18.Profile = sketch19
pocket18.Type = "UpToFirst"
pocket18.Reversed = True

sketch20 = body.newObject("Sketcher::SketchObject", "Sketch019")
sketch20.AttachmentSupport = (doc.getObject("XZ_Plane"), [""])
sketch20.MapMode = "FlatFace"
sketch20.AttachmentOffset = App.Placement(Vector(0, 0, -0.351145), App.Rotation())
sketch20.addGeometry(Part.Circle(Vector(3.8, 162.5, 0), Vector(0, 0, 1), 1.8), False)
sketch20.addConstraint(Sketcher.Constraint("Diameter", 0, 3.5))
sketch20.addConstraint(Sketcher.Constraint("DistanceY", -1, 1, 0, 3, 162.5))
sketch20.addConstraint(Sketcher.Constraint("DistanceX", -1, 1, 0, 3, 3.792842))
pocket19 = body.newObject("PartDesign::Pocket", "Pocket018")
pocket19.Profile = sketch20
pocket19.Type = "UpToFirst"
pocket19.Reversed = True

sketch21 = body.newObject("Sketcher::SketchObject", "Sketch020")
sketch21.AttachmentSupport = (doc.getObject("XZ_Plane"), [""])
sketch21.MapMode = "FlatFace"
sketch21.AttachmentOffset = App.Placement(Vector(0, 0, -0.351145), App.Rotation())
sketch21.addGeometry(Part.Circle(Vector(3.8, 137.5, 0), Vector(0, 0, 1), 1.8), False)
sketch21.addConstraint(Sketcher.Constraint("Diameter", 0, 3.5))
sketch21.addConstraint(Sketcher.Constraint("DistanceY", -1, 1, 0, 3, 137.5))
sketch21.addConstraint(Sketcher.Constraint("DistanceX", -1, 1, 0, 3, 3.792842))
pocket20 = body.newObject("PartDesign::Pocket", "Pocket019")
pocket20.Profile = sketch21
pocket20.Type = "UpToFirst"
pocket20.Reversed = True

sketch22 = body.newObject("Sketcher::SketchObject", "Sketch021")
sketch22.AttachmentSupport = (doc.getObject("XZ_Plane"), [""])
sketch22.MapMode = "FlatFace"
sketch22.AttachmentOffset = App.Placement(Vector(0, 0, -0.351145), App.Rotation())
sketch22.addGeometry(Part.Circle(Vector(3.8, 112.5, 0), Vector(0, 0, 1), 1.8), False)
sketch22.addConstraint(Sketcher.Constraint("Diameter", 0, 3.5))
sketch22.addConstraint(Sketcher.Constraint("DistanceY", -1, 1, 0, 3, 112.5))
sketch22.addConstraint(Sketcher.Constraint("DistanceX", -1, 1, 0, 3, 3.792842))
pocket21 = body.newObject("PartDesign::Pocket", "Pocket020")
pocket21.Profile = sketch22
pocket21.Type = "UpToFirst"
pocket21.Reversed = True

sketch23 = body.newObject("Sketcher::SketchObject", "Sketch022")
sketch23.AttachmentSupport = (doc.getObject("XZ_Plane"), [""])
sketch23.MapMode = "FlatFace"
sketch23.AttachmentOffset = App.Placement(Vector(0, 0, -0.351145), App.Rotation())
sketch23.addGeometry(Part.Circle(Vector(3.8, 87.5, 0), Vector(0, 0, 1), 1.8), False)
sketch23.addConstraint(Sketcher.Constraint("Diameter", 0, 3.5))
sketch23.addConstraint(Sketcher.Constraint("DistanceY", -1, 1, 0, 3, 87.5))
sketch23.addConstraint(Sketcher.Constraint("DistanceX", -1, 1, 0, 3, 3.792842))
pocket22 = body.newObject("PartDesign::Pocket", "Pocket021")
pocket22.Profile = sketch23
pocket22.Type = "UpToFirst"
pocket22.Reversed = True

sketch24 = body.newObject("Sketcher::SketchObject", "Sketch023")
sketch24.AttachmentSupport = (doc.getObject("XZ_Plane"), [""])
sketch24.MapMode = "FlatFace"
sketch24.AttachmentOffset = App.Placement(Vector(0, 0, -0.351145), App.Rotation())
sketch24.addGeometry(Part.Circle(Vector(3.8, 62.5, 0), Vector(0, 0, 1), 1.8), False)
sketch24.addConstraint(Sketcher.Constraint("Diameter", 0, 3.5))
sketch24.addConstraint(Sketcher.Constraint("DistanceY", -1, 1, 0, 3, 62.5))
sketch24.addConstraint(Sketcher.Constraint("DistanceX", -1, 1, 0, 3, 3.792842))
pocket23 = body.newObject("PartDesign::Pocket", "Pocket022")
pocket23.Profile = sketch24
pocket23.Type = "UpToFirst"
pocket23.Reversed = True

sketch25 = body.newObject("Sketcher::SketchObject", "Sketch024")
sketch25.AttachmentSupport = (doc.getObject("XZ_Plane"), [""])
sketch25.MapMode = "FlatFace"
sketch25.AttachmentOffset = App.Placement(Vector(0, 0, -0.351145), App.Rotation())
sketch25.addGeometry(Part.Circle(Vector(3.8, 37.5, 0), Vector(0, 0, 1), 1.8), False)
sketch25.addConstraint(Sketcher.Constraint("Diameter", 0, 3.5))
sketch25.addConstraint(Sketcher.Constraint("DistanceY", -1, 1, 0, 3, 37.5))
sketch25.addConstraint(Sketcher.Constraint("DistanceX", -1, 1, 0, 3, 3.792842))
pocket24 = body.newObject("PartDesign::Pocket", "Pocket023")
pocket24.Profile = sketch25
pocket24.Type = "UpToFirst"
pocket24.Reversed = True

sketch26 = body.newObject("Sketcher::SketchObject", "Sketch025")
sketch26.AttachmentSupport = (doc.getObject("XZ_Plane"), [""])
sketch26.MapMode = "FlatFace"
sketch26.AttachmentOffset = App.Placement(Vector(0, 0, -0.351145), App.Rotation())
sketch26.addGeometry(Part.Circle(Vector(3.8, 12.5, 0), Vector(0, 0, 1), 1.8), False)
sketch26.addConstraint(Sketcher.Constraint("Diameter", 0, 3.5))
sketch26.addConstraint(Sketcher.Constraint("DistanceY", -1, 1, 0, 3, 12.5))
sketch26.addConstraint(Sketcher.Constraint("DistanceX", -1, 1, 0, 3, 3.792842))
pocket25 = body.newObject("PartDesign::Pocket", "Pocket024")
pocket25.Profile = sketch26
pocket25.Type = "UpToFirst"
pocket25.Reversed = True

doc.recompute()
